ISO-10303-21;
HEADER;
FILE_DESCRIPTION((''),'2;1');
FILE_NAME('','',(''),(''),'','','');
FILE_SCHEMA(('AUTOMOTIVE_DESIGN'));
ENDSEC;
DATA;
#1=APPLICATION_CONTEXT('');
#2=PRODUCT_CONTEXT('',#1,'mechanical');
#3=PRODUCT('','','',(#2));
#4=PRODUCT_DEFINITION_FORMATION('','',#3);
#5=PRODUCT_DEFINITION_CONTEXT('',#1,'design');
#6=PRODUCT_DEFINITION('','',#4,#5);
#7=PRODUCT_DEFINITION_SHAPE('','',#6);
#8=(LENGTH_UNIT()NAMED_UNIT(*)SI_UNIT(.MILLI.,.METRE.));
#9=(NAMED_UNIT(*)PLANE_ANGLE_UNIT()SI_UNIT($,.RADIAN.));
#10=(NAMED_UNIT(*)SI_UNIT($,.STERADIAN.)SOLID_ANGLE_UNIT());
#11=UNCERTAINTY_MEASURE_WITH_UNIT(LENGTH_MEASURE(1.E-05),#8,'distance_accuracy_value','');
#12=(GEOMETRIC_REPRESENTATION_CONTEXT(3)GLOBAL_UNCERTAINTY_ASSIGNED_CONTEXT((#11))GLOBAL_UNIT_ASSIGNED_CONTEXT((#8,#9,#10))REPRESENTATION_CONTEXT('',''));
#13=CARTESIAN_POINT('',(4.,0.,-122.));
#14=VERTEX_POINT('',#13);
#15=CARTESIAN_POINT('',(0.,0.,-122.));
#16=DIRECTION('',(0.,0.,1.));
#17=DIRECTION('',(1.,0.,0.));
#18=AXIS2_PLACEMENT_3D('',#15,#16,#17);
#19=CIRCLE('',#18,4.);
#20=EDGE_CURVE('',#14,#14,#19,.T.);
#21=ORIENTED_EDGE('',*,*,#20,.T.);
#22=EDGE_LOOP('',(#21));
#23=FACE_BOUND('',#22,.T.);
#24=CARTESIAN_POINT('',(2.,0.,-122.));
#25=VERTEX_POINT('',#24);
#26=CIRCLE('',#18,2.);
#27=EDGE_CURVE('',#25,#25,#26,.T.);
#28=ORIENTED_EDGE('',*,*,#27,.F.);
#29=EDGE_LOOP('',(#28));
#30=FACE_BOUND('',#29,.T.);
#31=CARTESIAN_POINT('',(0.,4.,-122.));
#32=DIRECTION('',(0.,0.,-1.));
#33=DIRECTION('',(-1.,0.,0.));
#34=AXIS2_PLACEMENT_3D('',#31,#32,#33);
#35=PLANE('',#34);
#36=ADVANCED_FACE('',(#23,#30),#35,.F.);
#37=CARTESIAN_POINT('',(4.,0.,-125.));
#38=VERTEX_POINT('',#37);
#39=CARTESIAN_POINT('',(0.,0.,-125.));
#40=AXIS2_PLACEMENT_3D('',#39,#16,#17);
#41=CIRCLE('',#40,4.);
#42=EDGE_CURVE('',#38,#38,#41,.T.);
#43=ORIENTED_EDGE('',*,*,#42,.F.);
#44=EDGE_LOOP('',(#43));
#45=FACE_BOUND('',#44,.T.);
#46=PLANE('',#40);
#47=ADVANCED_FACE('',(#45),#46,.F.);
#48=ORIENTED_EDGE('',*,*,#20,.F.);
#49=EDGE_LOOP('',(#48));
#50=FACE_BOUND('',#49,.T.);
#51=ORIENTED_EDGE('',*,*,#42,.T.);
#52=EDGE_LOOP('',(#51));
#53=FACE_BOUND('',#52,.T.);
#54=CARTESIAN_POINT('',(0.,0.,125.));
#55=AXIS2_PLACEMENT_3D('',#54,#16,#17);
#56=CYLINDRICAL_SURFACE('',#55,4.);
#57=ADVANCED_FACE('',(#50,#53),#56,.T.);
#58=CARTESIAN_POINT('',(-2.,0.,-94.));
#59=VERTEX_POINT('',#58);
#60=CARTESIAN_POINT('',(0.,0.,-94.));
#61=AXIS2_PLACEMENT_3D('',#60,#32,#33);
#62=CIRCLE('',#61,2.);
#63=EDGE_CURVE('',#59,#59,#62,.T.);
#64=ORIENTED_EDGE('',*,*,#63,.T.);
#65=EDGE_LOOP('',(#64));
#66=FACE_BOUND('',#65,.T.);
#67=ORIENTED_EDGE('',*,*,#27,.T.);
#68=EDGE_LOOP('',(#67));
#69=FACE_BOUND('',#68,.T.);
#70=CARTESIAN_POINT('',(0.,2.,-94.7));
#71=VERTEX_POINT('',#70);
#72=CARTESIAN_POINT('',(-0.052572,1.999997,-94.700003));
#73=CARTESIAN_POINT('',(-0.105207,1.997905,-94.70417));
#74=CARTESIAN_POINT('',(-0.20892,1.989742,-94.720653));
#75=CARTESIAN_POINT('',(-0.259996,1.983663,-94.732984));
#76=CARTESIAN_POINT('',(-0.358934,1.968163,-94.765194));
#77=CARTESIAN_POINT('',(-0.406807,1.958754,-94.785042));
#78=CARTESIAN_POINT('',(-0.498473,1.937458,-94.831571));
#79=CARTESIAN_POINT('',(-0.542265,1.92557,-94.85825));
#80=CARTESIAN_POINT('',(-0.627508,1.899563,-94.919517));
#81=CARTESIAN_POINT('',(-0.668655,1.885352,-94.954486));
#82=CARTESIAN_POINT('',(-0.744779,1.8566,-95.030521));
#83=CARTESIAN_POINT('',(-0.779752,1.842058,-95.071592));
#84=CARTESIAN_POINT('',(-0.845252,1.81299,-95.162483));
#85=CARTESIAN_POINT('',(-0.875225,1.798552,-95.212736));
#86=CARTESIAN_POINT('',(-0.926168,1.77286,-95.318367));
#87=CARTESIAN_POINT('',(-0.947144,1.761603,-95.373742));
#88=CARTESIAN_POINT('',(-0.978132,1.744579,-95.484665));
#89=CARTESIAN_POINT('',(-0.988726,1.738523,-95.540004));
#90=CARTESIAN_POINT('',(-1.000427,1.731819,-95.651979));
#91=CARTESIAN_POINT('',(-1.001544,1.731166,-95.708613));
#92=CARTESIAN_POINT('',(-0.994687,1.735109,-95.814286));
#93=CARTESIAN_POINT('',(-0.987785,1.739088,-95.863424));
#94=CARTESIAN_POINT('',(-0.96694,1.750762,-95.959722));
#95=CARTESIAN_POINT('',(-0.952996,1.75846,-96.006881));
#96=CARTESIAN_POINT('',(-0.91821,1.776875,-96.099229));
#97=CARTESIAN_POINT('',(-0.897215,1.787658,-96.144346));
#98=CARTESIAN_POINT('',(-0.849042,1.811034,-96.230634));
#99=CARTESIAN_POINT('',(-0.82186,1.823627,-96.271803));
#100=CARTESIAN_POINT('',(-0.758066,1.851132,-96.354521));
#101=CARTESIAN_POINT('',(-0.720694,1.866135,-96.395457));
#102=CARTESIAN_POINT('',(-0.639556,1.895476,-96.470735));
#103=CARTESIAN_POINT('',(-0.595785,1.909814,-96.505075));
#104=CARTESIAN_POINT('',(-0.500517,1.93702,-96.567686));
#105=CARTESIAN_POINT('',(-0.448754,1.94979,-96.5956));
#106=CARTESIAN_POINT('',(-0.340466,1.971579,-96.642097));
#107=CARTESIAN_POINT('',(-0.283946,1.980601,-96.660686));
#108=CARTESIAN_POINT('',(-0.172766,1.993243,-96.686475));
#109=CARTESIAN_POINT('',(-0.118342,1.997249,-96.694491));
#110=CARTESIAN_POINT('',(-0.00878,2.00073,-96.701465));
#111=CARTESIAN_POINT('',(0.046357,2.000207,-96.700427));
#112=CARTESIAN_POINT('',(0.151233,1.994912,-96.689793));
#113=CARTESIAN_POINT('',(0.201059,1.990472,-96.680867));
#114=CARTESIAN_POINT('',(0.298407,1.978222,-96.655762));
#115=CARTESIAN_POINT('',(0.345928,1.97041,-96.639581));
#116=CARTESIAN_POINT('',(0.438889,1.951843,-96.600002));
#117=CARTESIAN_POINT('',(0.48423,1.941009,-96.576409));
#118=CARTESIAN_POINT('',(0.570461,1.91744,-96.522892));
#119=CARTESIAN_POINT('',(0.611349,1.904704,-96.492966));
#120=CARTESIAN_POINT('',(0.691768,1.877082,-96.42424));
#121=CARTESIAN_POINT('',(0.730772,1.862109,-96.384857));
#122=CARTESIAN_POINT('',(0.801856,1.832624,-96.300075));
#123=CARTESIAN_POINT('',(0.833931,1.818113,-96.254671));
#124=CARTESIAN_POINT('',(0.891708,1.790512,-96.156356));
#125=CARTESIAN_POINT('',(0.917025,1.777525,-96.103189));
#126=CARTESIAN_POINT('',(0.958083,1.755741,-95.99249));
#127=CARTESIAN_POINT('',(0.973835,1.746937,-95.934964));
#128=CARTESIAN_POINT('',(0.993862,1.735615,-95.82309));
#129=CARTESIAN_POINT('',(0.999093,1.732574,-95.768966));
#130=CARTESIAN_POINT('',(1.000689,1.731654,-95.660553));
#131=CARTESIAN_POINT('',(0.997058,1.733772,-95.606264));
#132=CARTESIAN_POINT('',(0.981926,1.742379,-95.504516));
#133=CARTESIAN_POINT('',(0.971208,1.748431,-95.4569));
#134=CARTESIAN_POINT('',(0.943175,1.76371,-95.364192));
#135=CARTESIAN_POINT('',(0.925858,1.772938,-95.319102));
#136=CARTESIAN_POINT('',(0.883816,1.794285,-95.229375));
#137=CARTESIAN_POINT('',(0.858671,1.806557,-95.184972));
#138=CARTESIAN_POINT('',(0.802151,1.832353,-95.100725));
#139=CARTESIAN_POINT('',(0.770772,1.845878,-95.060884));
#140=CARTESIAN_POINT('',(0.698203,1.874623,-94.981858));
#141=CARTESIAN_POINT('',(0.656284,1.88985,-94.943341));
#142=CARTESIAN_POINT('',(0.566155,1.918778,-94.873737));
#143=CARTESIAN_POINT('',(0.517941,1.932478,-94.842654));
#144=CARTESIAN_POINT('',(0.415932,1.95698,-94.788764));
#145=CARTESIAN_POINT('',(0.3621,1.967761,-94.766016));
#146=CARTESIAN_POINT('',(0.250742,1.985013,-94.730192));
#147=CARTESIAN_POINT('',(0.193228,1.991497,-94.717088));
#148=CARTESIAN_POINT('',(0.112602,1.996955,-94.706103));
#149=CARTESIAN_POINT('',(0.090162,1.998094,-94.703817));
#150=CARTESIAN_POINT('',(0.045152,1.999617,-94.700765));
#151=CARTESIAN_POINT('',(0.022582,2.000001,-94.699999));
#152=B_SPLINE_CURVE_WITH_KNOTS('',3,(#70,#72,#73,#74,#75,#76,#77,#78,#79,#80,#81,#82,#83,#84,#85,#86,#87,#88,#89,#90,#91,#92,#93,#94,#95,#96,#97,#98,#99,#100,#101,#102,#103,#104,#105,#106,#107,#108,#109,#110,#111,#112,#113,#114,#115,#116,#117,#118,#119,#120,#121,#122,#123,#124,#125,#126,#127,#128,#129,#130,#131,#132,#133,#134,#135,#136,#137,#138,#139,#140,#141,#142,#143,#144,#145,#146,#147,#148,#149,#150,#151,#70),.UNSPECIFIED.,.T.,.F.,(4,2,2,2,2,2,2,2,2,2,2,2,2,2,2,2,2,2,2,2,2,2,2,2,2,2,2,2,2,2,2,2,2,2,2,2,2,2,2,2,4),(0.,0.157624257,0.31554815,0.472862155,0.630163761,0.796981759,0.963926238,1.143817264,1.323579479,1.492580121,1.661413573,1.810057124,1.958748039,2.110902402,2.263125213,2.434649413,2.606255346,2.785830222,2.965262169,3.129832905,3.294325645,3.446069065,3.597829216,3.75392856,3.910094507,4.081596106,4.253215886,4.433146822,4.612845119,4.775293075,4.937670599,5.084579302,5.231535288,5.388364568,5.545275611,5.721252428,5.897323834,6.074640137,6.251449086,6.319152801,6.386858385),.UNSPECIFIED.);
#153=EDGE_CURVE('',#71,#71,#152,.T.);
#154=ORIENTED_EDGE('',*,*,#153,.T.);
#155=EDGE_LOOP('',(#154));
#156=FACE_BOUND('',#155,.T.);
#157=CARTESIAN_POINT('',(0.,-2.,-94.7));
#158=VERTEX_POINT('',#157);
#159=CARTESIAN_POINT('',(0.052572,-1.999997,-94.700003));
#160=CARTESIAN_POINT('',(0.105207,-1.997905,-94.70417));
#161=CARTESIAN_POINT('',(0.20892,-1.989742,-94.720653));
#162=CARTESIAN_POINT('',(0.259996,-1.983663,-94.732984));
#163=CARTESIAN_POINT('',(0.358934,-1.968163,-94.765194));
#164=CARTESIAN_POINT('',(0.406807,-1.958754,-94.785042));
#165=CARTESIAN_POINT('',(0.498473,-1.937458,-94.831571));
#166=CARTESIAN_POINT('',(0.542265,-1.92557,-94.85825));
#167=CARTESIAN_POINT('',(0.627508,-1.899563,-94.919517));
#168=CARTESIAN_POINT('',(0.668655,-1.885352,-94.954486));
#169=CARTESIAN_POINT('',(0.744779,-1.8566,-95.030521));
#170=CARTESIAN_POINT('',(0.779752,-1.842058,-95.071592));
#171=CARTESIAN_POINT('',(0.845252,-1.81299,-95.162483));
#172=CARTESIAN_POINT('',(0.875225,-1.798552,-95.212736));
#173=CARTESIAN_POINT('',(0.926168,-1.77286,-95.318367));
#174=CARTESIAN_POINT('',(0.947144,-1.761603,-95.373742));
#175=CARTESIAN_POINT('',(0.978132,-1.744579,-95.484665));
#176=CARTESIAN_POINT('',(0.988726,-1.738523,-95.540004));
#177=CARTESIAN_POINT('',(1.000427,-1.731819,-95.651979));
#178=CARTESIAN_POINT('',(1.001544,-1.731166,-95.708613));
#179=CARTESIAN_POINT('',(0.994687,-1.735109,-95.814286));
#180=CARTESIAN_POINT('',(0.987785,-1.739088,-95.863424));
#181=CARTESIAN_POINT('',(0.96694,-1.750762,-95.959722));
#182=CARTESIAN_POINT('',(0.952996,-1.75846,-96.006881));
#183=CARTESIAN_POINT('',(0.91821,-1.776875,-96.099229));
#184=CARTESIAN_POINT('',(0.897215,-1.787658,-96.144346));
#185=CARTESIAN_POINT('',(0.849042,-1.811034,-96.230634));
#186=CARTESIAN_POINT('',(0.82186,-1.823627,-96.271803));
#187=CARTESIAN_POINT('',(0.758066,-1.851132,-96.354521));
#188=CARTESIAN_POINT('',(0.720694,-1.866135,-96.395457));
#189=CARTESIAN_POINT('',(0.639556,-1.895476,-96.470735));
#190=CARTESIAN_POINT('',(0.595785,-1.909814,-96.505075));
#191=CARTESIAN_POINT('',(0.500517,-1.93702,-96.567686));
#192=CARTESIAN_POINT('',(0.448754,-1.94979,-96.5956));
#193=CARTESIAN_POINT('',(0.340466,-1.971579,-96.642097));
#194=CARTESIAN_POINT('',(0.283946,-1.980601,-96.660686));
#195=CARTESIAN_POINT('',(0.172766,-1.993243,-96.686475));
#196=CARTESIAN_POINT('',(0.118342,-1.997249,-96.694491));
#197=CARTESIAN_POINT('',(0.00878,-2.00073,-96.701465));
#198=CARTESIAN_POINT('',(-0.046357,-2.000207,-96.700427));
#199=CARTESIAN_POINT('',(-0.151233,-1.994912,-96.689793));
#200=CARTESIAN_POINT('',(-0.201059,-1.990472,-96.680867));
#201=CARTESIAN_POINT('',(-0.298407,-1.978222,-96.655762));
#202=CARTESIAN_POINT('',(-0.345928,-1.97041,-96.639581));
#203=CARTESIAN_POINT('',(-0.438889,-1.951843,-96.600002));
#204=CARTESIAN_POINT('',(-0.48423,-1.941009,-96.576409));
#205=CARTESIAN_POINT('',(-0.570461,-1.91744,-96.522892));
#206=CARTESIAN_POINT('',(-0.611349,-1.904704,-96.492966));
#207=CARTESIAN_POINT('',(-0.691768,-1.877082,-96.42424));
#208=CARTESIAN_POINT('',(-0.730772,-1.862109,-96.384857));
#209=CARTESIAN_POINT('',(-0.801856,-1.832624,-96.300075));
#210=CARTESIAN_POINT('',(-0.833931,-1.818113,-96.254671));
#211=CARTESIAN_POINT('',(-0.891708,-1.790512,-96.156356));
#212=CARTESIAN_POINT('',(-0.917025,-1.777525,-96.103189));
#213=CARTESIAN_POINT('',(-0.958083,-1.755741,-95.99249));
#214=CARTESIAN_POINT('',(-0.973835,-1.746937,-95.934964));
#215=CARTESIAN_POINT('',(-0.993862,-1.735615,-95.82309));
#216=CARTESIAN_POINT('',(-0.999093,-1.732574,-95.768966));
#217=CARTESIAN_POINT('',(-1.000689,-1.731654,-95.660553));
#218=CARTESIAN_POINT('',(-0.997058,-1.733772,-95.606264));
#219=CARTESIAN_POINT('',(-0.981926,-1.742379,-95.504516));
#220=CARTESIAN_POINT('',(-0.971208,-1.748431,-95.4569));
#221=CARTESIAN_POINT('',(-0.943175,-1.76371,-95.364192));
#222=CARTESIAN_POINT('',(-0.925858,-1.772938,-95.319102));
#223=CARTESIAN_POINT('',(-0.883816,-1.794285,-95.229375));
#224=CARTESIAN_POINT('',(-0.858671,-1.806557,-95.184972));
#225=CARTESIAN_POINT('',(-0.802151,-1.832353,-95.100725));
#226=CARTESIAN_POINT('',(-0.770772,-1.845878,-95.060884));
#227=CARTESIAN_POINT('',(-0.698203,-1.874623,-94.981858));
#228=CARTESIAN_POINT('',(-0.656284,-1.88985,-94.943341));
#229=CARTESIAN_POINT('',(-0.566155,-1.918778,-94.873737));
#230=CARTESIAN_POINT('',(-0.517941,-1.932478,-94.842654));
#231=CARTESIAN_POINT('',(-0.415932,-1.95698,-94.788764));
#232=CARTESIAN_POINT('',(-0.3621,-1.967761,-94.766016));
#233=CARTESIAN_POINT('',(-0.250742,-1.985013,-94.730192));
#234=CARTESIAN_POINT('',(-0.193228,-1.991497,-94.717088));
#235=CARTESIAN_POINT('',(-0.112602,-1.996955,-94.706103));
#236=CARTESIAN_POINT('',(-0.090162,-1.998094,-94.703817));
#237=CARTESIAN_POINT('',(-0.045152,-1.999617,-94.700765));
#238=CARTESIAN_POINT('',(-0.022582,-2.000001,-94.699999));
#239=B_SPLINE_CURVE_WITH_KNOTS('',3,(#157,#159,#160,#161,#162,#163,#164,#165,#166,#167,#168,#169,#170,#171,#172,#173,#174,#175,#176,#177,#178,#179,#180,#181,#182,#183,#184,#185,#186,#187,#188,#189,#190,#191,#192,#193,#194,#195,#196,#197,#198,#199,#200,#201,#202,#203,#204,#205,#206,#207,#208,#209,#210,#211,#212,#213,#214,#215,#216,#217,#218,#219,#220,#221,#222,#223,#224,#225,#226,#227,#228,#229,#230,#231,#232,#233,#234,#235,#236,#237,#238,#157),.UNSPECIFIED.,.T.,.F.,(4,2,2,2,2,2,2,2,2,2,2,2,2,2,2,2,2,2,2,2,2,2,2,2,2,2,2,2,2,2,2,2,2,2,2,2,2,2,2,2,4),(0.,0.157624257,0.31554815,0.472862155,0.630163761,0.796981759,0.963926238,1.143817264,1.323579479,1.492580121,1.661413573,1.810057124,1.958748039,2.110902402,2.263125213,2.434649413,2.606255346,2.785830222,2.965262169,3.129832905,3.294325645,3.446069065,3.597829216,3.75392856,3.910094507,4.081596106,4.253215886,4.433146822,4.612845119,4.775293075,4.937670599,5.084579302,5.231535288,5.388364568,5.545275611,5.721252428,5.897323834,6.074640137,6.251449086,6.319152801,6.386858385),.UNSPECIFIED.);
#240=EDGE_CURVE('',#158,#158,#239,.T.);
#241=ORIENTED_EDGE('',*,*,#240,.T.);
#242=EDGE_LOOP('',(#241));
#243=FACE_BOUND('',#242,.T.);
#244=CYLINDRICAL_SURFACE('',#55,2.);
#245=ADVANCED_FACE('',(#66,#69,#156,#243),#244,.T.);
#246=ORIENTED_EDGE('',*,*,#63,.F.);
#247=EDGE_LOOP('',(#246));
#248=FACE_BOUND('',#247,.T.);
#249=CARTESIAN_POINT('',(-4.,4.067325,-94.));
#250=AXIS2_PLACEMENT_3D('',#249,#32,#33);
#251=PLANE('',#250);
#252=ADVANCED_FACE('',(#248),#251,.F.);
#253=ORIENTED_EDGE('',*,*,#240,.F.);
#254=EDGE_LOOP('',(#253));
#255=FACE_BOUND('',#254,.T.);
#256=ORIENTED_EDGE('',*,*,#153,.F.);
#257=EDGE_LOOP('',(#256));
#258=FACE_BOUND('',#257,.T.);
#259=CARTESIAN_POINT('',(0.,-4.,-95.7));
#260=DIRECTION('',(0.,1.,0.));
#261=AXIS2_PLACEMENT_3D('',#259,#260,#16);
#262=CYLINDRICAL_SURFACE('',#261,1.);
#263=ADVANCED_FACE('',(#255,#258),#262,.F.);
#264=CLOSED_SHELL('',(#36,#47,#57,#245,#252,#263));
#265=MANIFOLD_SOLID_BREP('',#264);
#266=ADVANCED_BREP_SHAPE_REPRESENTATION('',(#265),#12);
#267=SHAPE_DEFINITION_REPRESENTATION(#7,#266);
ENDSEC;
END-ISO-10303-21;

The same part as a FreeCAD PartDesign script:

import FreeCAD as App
import Part
import Sketcher
Q = App.Units.Quantity

doc = App.newDocument("Part")
body = doc.addObject("PartDesign::Body", "Body")

sketch1 = body.newObject("Sketcher::SketchObject", "Sketch")
sketch1.AttachmentSupport = (doc.getObject("YZ_Plane"), [""])
sketch1.MapMode = "FlatFace"
sketch1.addGeometry(Part.LineSegment(App.Vector(0, -125, 0), App.Vector(4, -125, 0)), False)
sketch1.addGeometry(Part.LineSegment(App.Vector(4, -125, 0), App.Vector(4, -122, 0)), False)
sketch1.addGeometry(Part.LineSegment(App.Vector(4, -122, 0), App.Vector(2, -122, 0)), False)
sketch1.addGeometry(Part.LineSegment(App.Vector(2, -122, 0), App.Vector(2, 125, 0)), False)
sketch1.addGeometry(Part.LineSegment(App.Vector(2, 125, 0), App.Vector(0, 125, 0)), False)
sketch1.addGeometry(Part.LineSegment(App.Vector(0, 125, 0), App.Vector(0, -125, 0)), False)
sketch1.addConstraint(Sketcher.Constraint("Coincident", 0, 2, 1, 1))
sketch1.addConstraint(Sketcher.Constraint("Coincident", 1, 2, 2, 1))
sketch1.addConstraint(Sketcher.Constraint("Coincident", 2, 2, 3, 1))
sketch1.addConstraint(Sketcher.Constraint("Coincident", 3, 2, 4, 1))
sketch1.addConstraint(Sketcher.Constraint("Coincident", 4, 2, 5, 1))
sketch1.addConstraint(Sketcher.Constraint("Coincident", 5, 2, 0, 1))
sketch1.addConstraint(Sketcher.Constraint("Horizontal", 0))
sketch1.addConstraint(Sketcher.Constraint("Vertical", 1))
sketch1.addConstraint(Sketcher.Constraint("Horizontal", 2))
sketch1.addConstraint(Sketcher.Constraint("Vertical", 3))
sketch1.addConstraint(Sketcher.Constraint("Horizontal", 4))
sketch1.addConstraint(Sketcher.Constraint("Vertical", 5))
sketch1.addConstraint(Sketcher.Constraint("Symmetric", 4, 2, 5, 2, -1, 1))
sketch1.addConstraint(Sketcher.Constraint("Equal", 2, 4))
sketch1.addConstraint(Sketcher.Constraint("DistanceX", 0, 1, 0, 2, Q("4 mm")))
sketch1.addConstraint(Sketcher.Constraint("DistanceY", 1, 1, 1, 2, Q("3 mm")))
sketch1.addConstraint(Sketcher.Constraint("DistanceY", 3, 1, 3, 2, Q("247 mm")))
revolution = body.newObject("PartDesign::Revolution", "Revolution")
revolution.Profile = sketch1
revolution.ReferenceAxis = (sketch1, ["V_Axis"])
revolution.Angle = 360

sketch2 = body.newObject("Sketcher::SketchObject", "Sketch001")
sketch2.AttachmentSupport = (doc.getObject("YZ_Plane"), [""])
sketch2.MapMode = "FlatFace"
sketch2.addGeometry(Part.LineSegment(App.Vector(4, 206, 0), App.Vector(-4, 206, 0)), False)
sketch2.addGeometry(Part.LineSegment(App.Vector(-4, 206, 0), App.Vector(-4, -94, 0)), False)
sketch2.addGeometry(Part.LineSegment(App.Vector(-4, -94, 0), App.Vector(4, -94, 0)), False)
sketch2.addGeometry(Part.LineSegment(App.Vector(4, -94, 0), App.Vector(4, 206, 0)), False)
sketch2.addConstraint(Sketcher.Constraint("Coincident", 0, 2, 1, 1))
sketch2.addConstraint(Sketcher.Constraint("Coincident", 1, 2, 2, 1))
sketch2.addConstraint(Sketcher.Constraint("Coincident", 2, 2, 3, 1))
sketch2.addConstraint(Sketcher.Constraint("Coincident", 3, 2, 0, 1))
sketch2.addConstraint(Sketcher.Constraint("Horizontal", 0))
sketch2.addConstraint(Sketcher.Constraint("Vertical", 1))
sketch2.addConstraint(Sketcher.Constraint("Horizontal", 2))
sketch2.addConstraint(Sketcher.Constraint("Vertical", 3))
sketch2.addConstraint(Sketcher.Constraint("DistanceY", 1, 2, 1, 1, Q("300 mm")))
sketch2.addConstraint(Sketcher.Constraint("DistanceY", -1, 1, 0, 2, Q("206 mm")))
sketch2.addConstraint(Sketcher.Constraint("DistanceX", 0, 2, 0, 1, Q("7.833366 mm")))
sketch2.addConstraint(Sketcher.Constraint("DistanceX", 0, 2, -1, 1, Q("3.766042 mm")))
pocket1 = body.newObject("PartDesign::Pocket", "Pocket")
pocket1.Profile = sketch2
pocket1.Type = "ThroughAll"
pocket1.Midplane = True

sketch3 = body.newObject("Sketcher::SketchObject", "Sketch002")
sketch3.AttachmentSupport = (doc.getObject("XZ_Plane"), [""])
sketch3.MapMode = "FlatFace"
sketch3.addGeometry(Part.Circle(App.Vector(0, -95.7, 0), App.Vector(0, 0, 1), 1), False)
sketch3.addConstraint(Sketcher.Constraint("PointOnObject", 0, 3, -2))
sketch3.addConstraint(Sketcher.Constraint("Diameter", 0, Q("2 mm")))
sketch3.addConstraint(Sketcher.Constraint("DistanceY", 0, 3, -1, 1, Q("95.7 mm")))
pocket2 = body.newObject("PartDesign::Pocket", "Pocket001")
pocket2.Profile = sketch3
pocket2.Type = "ThroughAll"
pocket2.Midplane = True

doc.recompute()
